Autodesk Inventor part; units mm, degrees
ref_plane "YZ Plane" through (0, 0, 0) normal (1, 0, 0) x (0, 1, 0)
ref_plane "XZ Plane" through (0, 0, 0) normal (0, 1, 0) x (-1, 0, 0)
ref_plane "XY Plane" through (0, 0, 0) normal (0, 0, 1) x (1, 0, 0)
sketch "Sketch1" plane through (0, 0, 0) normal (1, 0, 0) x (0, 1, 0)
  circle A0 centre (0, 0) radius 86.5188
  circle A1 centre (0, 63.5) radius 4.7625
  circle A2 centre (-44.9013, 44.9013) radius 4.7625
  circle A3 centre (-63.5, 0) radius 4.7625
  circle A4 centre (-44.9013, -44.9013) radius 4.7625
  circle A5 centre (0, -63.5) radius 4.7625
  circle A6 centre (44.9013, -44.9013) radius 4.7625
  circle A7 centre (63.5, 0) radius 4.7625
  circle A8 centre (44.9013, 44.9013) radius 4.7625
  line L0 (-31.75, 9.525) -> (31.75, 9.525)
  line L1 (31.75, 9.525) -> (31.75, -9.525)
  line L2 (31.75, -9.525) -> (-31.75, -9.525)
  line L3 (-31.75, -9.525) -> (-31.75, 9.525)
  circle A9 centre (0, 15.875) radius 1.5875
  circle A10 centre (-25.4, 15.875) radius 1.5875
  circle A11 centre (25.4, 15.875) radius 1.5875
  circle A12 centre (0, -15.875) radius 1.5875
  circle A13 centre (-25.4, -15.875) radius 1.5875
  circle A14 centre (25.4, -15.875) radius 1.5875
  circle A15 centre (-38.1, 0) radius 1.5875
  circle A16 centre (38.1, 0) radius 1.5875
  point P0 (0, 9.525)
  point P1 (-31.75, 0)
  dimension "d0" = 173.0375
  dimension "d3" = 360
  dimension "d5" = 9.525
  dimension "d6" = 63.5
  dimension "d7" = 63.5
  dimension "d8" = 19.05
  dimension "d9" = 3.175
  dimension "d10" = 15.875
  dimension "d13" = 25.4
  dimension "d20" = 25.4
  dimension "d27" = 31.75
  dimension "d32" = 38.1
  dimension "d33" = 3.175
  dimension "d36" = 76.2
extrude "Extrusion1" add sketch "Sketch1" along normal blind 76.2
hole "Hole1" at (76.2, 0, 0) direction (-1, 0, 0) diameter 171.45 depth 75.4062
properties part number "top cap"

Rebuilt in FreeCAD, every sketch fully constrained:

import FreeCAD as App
import Part
import Sketcher
Q = App.Units.Quantity


def add_polygon(sketch, points):
    """Adds a closed chain of lines whose ends are joined by coincident constraints."""
    first, n = sketch.GeometryCount, len(points)
    for a, b in zip(points, points[1:] + points[:1]):
        sketch.addGeometry(Part.LineSegment(App.Vector(*a, 0), App.Vector(*b, 0)), False)
    for i in range(n):
        sketch.addConstraint(Sketcher.Constraint("Coincident", first + i, 2, first + (i + 1) % n, 1))

doc = App.newDocument("Part")
body = doc.addObject("PartDesign::Body", "Body")

sketch1 = body.newObject("Sketcher::SketchObject", "Sketch")
sketch1.AttachmentSupport = (doc.getObject("YZ_Plane"), [""])
sketch1.MapMode = "FlatFace"
sketch1.addGeometry(Part.Circle(App.Vector(0, 0, 0), App.Vector(0, 0, 1), 86.5188), False)
sketch1.addGeometry(Part.Circle(App.Vector(-44.9013, -44.9013, 0), App.Vector(0, 0, 1), 4.7625), False)
sketch1.addGeometry(Part.Circle(App.Vector(-25.4, -15.875, 0), App.Vector(0, 0, 1), 1.5875), False)
sketch1.addGeometry(Part.Circle(App.Vector(0, -63.5, 0), App.Vector(0, 0, 1), 4.7625), False)
sketch1.addGeometry(Part.Circle(App.Vector(44.9013, -44.9013, 0), App.Vector(0, 0, 1), 4.7625), False)
sketch1.addGeometry(Part.Circle(App.Vector(0, -15.875, 0), App.Vector(0, 0, 1), 1.5875), False)
sketch1.addGeometry(Part.Circle(App.Vector(25.4, -15.875, 0), App.Vector(0, 0, 1), 1.5875), False)
sketch1.addGeometry(Part.Circle(App.Vector(-63.5, 0, 0), App.Vector(0, 0, 1), 4.7625), False)
sketch1.addGeometry(Part.Circle(App.Vector(-38.1, 0, 0), App.Vector(0, 0, 1), 1.5875), False)
sketch1.addGeometry(Part.Circle(App.Vector(-25.4, 15.875, 0), App.Vector(0, 0, 1), 1.5875), False)
sketch1.addGeometry(Part.Circle(App.Vector(-44.9013, 44.9013, 0), App.Vector(0, 0, 1), 4.7625), False)
add_polygon(sketch1, [(-31.75, -9.525), (-31.75, 9.525), (31.75, 9.525), (31.75, -9.525)])
sketch1.addGeometry(Part.Circle(App.Vector(0, 15.875, 0), App.Vector(0, 0, 1), 1.5875), False)
sketch1.addGeometry(Part.Circle(App.Vector(38.1, 0, 0), App.Vector(0, 0, 1), 1.5875), False)
sketch1.addGeometry(Part.Circle(App.Vector(25.4, 15.875, 0), App.Vector(0, 0, 1), 1.5875), False)
sketch1.addGeometry(Part.Circle(App.Vector(63.5, 0, 0), App.Vector(0, 0, 1), 4.7625), False)
sketch1.addGeometry(Part.Circle(App.Vector(0, 63.5, 0), App.Vector(0, 0, 1), 4.7625), False)
sketch1.addGeometry(Part.Circle(App.Vector(44.9013, 44.9013, 0), App.Vector(0, 0, 1), 4.7625), False)
sketch1.addConstraint(Sketcher.Constraint("Vertical", 11))
sketch1.addConstraint(Sketcher.Constraint("Horizontal", 12))
sketch1.addConstraint(Sketcher.Constraint("Vertical", 13))
sketch1.addConstraint(Sketcher.Constraint("Horizontal", 14))
sketch1.addConstraint(Sketcher.Constraint("Coincident", 0, 3, -1, 1))
sketch1.addConstraint(Sketcher.Constraint("Equal", 1, 3))
sketch1.addConstraint(Sketcher.Constraint("Equal", 3, 4))
sketch1.addConstraint(Sketcher.Constraint("Equal", 2, 5))
sketch1.addConstraint(Sketcher.Constraint("Equal", 5, 6))
sketch1.addConstraint(Sketcher.Constraint("Equal", 4, 7))
sketch1.addConstraint(Sketcher.Constraint("Equal", 6, 8))
sketch1.addConstraint(Sketcher.Constraint("Equal", 8, 9))
sketch1.addConstraint(Sketcher.Constraint("Equal", 7, 10))
sketch1.addConstraint(Sketcher.Constraint("Equal", 9, 15))
sketch1.addConstraint(Sketcher.Constraint("Equal", 15, 16))
sketch1.addConstraint(Sketcher.Constraint("Equal", 16, 17))
sketch1.addConstraint(Sketcher.Constraint("Equal", 10, 18))
sketch1.addConstraint(Sketcher.Constraint("Equal", 18, 19))
sketch1.addConstraint(Sketcher.Constraint("Equal", 19, 20))
sketch1.addConstraint(Sketcher.Constraint("Symmetric", 6, 3, 9, 3, -1, 1))
sketch1.addConstraint(Sketcher.Constraint("Symmetric", 4, 3, 10, 3, -1, 1))
sketch1.addConstraint(Sketcher.Constraint("Symmetric", 5, 3, 15, 3, -1, 1))
sketch1.addConstraint(Sketcher.Constraint("Symmetric", 8, 3, 16, 3, -1, 1))
sketch1.addConstraint(Sketcher.Constraint("Symmetric", 2, 3, 17, 3, -1, 1))
sketch1.addConstraint(Sketcher.Constraint("Symmetric", 7, 3, 18, 3, -1, 1))
sketch1.addConstraint(Sketcher.Constraint("Symmetric", 3, 3, 19, 3, -1, 1))
sketch1.addConstraint(Sketcher.Constraint("Symmetric", 1, 3, 20, 3, -1, 1))
sketch1.addConstraint(Sketcher.Constraint("Symmetric", 11, 2, 13, 2, -1, 1))
sketch1.addConstraint(Sketcher.Constraint("Symmetric", 1, 3, 4, 3, -2))
sketch1.addConstraint(Sketcher.Constraint("Symmetric", 2, 3, 6, 3, -2))
sketch1.addConstraint(Sketcher.Constraint("PointOnObject", 3, 3, -2))
sketch1.addConstraint(Sketcher.Constraint("PointOnObject", 5, 3, -2))
sketch1.addConstraint(Sketcher.Constraint("PointOnObject", 7, 3, -1))
sketch1.addConstraint(Sketcher.Constraint("PointOnObject", 8, 3, -1))
sketch1.addConstraint(Sketcher.Constraint("Horizontal", 2, 3, 5, 3))
sketch1.addConstraint(Sketcher.Constraint("Diameter", 0, Q("6.8125 in")))
sketch1.addConstraint(Sketcher.Constraint("Diameter", 1, Q("0.375 in")))
sketch1.addConstraint(Sketcher.Constraint("Diameter", 2, Q("0.125 in")))
sketch1.addConstraint(Sketcher.Constraint("DistanceX", 12, 1, 12, 2, Q("2.5 in")))
sketch1.addConstraint(Sketcher.Constraint("DistanceX", 2, 3, -1, 1, Q("1 in")))
sketch1.addConstraint(Sketcher.Constraint("DistanceX", 7, 3, 8, 3, Q("1 in")))
sketch1.addConstraint(Sketcher.Constraint("DistanceY", 2, 3, 11, 2, Q("1 in")))
sketch1.addConstraint(Sketcher.Constraint("DistanceY", 11, 1, 11, 2, Q("0.75 in")))
sketch1.addConstraint(Sketcher.Constraint("DistanceY", 3, 3, -1, 1, Q("2.5 in")))
sketch1.addConstraint(Sketcher.Constraint("DistanceX", 7, 3, -1, 1, Q("2.5 in")))
sketch1.addConstraint(Sketcher.Constraint("DistanceX", 1, 3, -1, 1, 44.9013))
sketch1.addConstraint(Sketcher.Constraint("DistanceY", 1, 3, -1, 1, 44.9013))
pad1 = body.newObject("PartDesign::Pad", "Pad")
pad1.Profile = sketch1
pad1.Length = Q("3 in")

sketch2 = body.newObject("Sketcher::SketchObject", "Sketch001")
sketch2.AttachmentSupport = (doc.getObject("YZ_Plane"), [""])
sketch2.MapMode = "FlatFace"
sketch2.AttachmentOffset = App.Placement(App.Vector(0, 0, 3 * 25.4), App.Rotation())
sketch2.addGeometry(Part.Circle(App.Vector(0, 0, 0), App.Vector(0, 0, 1), 85.725), False)
sketch2.addConstraint(Sketcher.Constraint("Coincident", 0, 3, -1, 1))
sketch2.addConstraint(Sketcher.Constraint("Diameter", 0, Q("6.75 in")))
doc.recompute()
hole = body.newObject("PartDesign::Hole", "Hole")
hole.Profile = sketch2
hole.ThreadType = "None"
hole.Diameter = Q("6.75 in")
hole.DepthType = "Dimension"
hole.Depth = Q("2.968748 in")
hole.DrillPoint = "Flat"

doc.recompute()
